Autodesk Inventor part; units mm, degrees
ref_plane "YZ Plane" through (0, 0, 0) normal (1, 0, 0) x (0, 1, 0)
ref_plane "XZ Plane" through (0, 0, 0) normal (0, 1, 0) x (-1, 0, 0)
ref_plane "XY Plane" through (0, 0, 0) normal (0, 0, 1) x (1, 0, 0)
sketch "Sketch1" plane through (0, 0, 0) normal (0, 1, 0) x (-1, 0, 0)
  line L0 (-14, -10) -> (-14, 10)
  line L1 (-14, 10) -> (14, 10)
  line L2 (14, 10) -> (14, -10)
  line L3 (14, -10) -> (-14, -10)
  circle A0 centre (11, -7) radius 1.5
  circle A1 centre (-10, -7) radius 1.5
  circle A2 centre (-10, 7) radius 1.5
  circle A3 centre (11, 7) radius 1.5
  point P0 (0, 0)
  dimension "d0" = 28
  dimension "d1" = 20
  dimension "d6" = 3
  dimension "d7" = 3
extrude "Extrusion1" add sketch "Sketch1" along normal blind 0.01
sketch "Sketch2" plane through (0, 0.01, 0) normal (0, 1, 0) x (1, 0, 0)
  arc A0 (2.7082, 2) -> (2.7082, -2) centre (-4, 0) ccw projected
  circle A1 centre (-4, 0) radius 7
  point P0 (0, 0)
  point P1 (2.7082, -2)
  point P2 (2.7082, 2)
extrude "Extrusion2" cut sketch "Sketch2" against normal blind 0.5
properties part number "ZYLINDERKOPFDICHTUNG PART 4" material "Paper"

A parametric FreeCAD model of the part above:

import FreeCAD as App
import Part
import Sketcher

V = App.Vector
Q = App.Units.Quantity

doc = App.newDocument("Part")
body = doc.addObject("PartDesign::Body", "Body")

sketch1 = doc.addObject("Sketcher::SketchObject", "Sketch")
body.addObject(sketch1)
sketch1.AttachmentSupport = (doc.XZ_Plane, [""])
sketch1.MapMode = "FlatFace"
sketch1.addGeometry([
    Part.LineSegment(V(14, 10, 0), V(14, -10, 0)),
    Part.LineSegment(V(14, -10, 0), V(-14, -10, 0)),
    Part.LineSegment(V(-14, -10, 0), V(-14, 10, 0)),
    Part.LineSegment(V(-14, 10, 0), V(14, 10, 0)),
    Part.Circle(V(10, -7, 0), V(0, 0, 1), 1.5),
    Part.Circle(V(-11, -7, 0), V(0, 0, 1), 1.5),
    Part.Circle(V(10, 7, 0), V(0, 0, 1), 1.5),
    Part.Circle(V(-11, 7, 0), V(0, 0, 1), 1.5),
], False)
sketch1.addConstraint([
    Sketcher.Constraint("Coincident", 0, 2, 1, 1),
    Sketcher.Constraint("Coincident", 1, 2, 2, 1),
    Sketcher.Constraint("Coincident", 2, 2, 3, 1),
    Sketcher.Constraint("Coincident", 3, 2, 0, 1),
    Sketcher.Constraint("Vertical", 0),
    Sketcher.Constraint("Horizontal", 1),
    Sketcher.Constraint("Vertical", 2),
    Sketcher.Constraint("Horizontal", 3),
    Sketcher.Constraint("Equal", 4, 5),
    Sketcher.Constraint("Equal", 5, 6),
    Sketcher.Constraint("Equal", 6, 7),
    Sketcher.Constraint("Symmetric", 0, 2, 2, 2, -1, 1),
    Sketcher.Constraint("Symmetric", 4, 3, 6, 3, -1),
    Sketcher.Constraint("Symmetric", 5, 3, 7, 3, -1),
    Sketcher.Constraint("Horizontal", 4, 3, 5, 3),
    Sketcher.Constraint("Diameter", 4, Q("3 mm")),
    Sketcher.Constraint("DistanceX", 1, 2, 1, 1, Q("28 mm")),
    Sketcher.Constraint("DistanceY", 0, 2, 0, 1, Q("20 mm")),
    Sketcher.Constraint("DistanceY", 0, 2, 4, 3, Q("3 mm")),
    Sketcher.Constraint("DistanceX", 1, 2, 5, 3, Q("3 mm")),
    Sketcher.Constraint("DistanceX", -1, 1, 4, 3, Q("10 mm")),
])
pad1 = doc.addObject("PartDesign::Pad", "Pad")
body.addObject(pad1)
pad1.Profile = sketch1
pad1.Length = 0.01
pad1.Reversed = True

sketch2 = doc.addObject("Sketcher::SketchObject", "Sketch001")
body.addObject(sketch2)
sketch2.AttachmentSupport = (doc.XZ_Plane, [""])
sketch2.MapMode = "FlatFace"
sketch2.AttachmentOffset = App.Placement(V(0, 0, -0.01), App.Rotation())
sketch2.addGeometry(Part.Circle(V(-4, 0, 0), V(0, 0, 1), 7), False)
sketch2.addConstraint([
    Sketcher.Constraint("PointOnObject", 0, 3, -1),
    Sketcher.Constraint("Diameter", 0, Q("14 mm")),
    Sketcher.Constraint("DistanceX", 0, 3, -1, 1, Q("4 mm")),
])
pocket1 = doc.addObject("PartDesign::Pocket", "Pocket")
body.addObject(pocket1)
pocket1.Profile = sketch2
pocket1.Length = 0.5
pocket1.Reversed = True

doc.recompute()
